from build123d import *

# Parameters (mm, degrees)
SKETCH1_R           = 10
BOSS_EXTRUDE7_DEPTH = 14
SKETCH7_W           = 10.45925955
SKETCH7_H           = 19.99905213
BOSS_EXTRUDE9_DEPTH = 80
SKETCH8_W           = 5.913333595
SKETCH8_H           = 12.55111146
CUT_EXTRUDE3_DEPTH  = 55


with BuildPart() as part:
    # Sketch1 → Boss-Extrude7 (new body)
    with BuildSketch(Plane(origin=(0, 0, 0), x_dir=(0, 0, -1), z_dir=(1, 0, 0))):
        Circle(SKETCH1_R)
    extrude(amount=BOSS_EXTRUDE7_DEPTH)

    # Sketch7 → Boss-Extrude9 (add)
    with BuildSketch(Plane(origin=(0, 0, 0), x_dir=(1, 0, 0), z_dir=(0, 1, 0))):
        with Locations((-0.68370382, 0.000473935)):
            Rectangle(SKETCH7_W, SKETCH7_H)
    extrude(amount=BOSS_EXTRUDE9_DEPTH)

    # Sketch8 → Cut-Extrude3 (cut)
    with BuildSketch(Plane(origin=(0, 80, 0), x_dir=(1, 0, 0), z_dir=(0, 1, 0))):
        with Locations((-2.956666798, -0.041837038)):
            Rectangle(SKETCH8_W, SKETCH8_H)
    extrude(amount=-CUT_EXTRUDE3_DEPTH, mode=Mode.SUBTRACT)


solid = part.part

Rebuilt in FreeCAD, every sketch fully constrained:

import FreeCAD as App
import Part
import Sketcher

V = App.Vector
Q = App.Units.Quantity

doc = App.newDocument("Part")
body = doc.addObject("PartDesign::Body", "Body")

# Sketch on YZ plane
sketch1 = body.newObject("Sketcher::SketchObject", "Sketch")
sketch1.AttachmentSupport = (doc.getObject("YZ_Plane"), [""])
sketch1.MapMode = "FlatFace"
sketch1.addGeometry(Part.Circle(V(0, 0, 0), V(0, 0, 1), 10), False)
sketch1.addConstraint([
    Sketcher.Constraint("Coincident", 0, 3, -1, 1),
    Sketcher.Constraint("Diameter", 0, Q("20 mm")),
])
pad1 = body.newObject("PartDesign::Pad", "Pad")
pad1.Profile = sketch1
pad1.Length = 14

# Sketch on XZ plane
sketch2 = body.newObject("Sketcher::SketchObject", "Sketch001")
sketch2.AttachmentSupport = (doc.getObject("XZ_Plane"), [""])
sketch2.MapMode = "FlatFace"
sketch2.addGeometry([
    Part.LineSegment(V(-6, -10, 0), V(-6, 10, 0)),
    Part.LineSegment(V(-6, 10, 0), V(5, 10, 0)),
    Part.LineSegment(V(5, 10, 0), V(5, -10, 0)),
    Part.LineSegment(V(5, -10, 0), V(-6, -10, 0)),
], False)
sketch2.addConstraint([
    Sketcher.Constraint("Coincident", 0, 2, 1, 1),
    Sketcher.Constraint("Coincident", 1, 2, 2, 1),
    Sketcher.Constraint("Coincident", 2, 2, 3, 1),
    Sketcher.Constraint("Coincident", 3, 2, 0, 1),
    Sketcher.Constraint("Vertical", 0),
    Sketcher.Constraint("Horizontal", 1),
    Sketcher.Constraint("Vertical", 2),
    Sketcher.Constraint("Horizontal", 3),
    Sketcher.Constraint("DistanceY", 2, 2, -1, 1, Q("10 mm")),
    Sketcher.Constraint("DistanceX", 1, 1, 1, 2, Q("10.45926 mm")),
    Sketcher.Constraint("DistanceY", 0, 1, 0, 2, Q("19.999052 mm")),
    Sketcher.Constraint("DistanceX", 0, 2, -1, 1, Q("5.913334 mm")),
])
pad2 = body.newObject("PartDesign::Pad", "Pad001")
pad2.Profile = sketch2
pad2.Length = 80
pad2.Reversed = True

# Sketch on XZ plane
sketch3 = body.newObject("Sketcher::SketchObject", "Sketch002")
sketch3.AttachmentSupport = (doc.getObject("XZ_Plane"), [""])
sketch3.MapMode = "FlatFace"
sketch3.AttachmentOffset = App.Placement(V(0, 0, -80), App.Rotation())
sketch3.addGeometry([
    Part.LineSegment(V(-6, -6, 0), V(-6, 6, 0)),
    Part.LineSegment(V(-6, 6, 0), V(0, 6, 0)),
    Part.LineSegment(V(0, 6, 0), V(0, -6, 0)),
    Part.LineSegment(V(0, -6, 0), V(-6, -6, 0)),
], False)
sketch3.addConstraint([
    Sketcher.Constraint("Coincident", 0, 2, 1, 1),
    Sketcher.Constraint("Coincident", 1, 2, 2, 1),
    Sketcher.Constraint("Coincident", 2, 2, 3, 1),
    Sketcher.Constraint("Coincident", 3, 2, 0, 1),
    Sketcher.Constraint("Vertical", 0),
    Sketcher.Constraint("Horizontal", 1),
    Sketcher.Constraint("Vertical", 2),
    Sketcher.Constraint("Horizontal", 3),
    Sketcher.Constraint("PointOnObject", 1, 2, -2),
    Sketcher.Constraint("DistanceY", 0, 1, 0, 2, Q("12.551111 mm")),
    Sketcher.Constraint("DistanceX", 1, 1, 1, 2, Q("5.913334 mm")),
    Sketcher.Constraint("DistanceY", 2, 2, -1, 1, Q("6.233719 mm")),
])
pocket1 = body.newObject("PartDesign::Pocket", "Pocket")
pocket1.Profile = sketch3
pocket1.Length = 55
pocket1.Reversed = True

doc.recompute()
